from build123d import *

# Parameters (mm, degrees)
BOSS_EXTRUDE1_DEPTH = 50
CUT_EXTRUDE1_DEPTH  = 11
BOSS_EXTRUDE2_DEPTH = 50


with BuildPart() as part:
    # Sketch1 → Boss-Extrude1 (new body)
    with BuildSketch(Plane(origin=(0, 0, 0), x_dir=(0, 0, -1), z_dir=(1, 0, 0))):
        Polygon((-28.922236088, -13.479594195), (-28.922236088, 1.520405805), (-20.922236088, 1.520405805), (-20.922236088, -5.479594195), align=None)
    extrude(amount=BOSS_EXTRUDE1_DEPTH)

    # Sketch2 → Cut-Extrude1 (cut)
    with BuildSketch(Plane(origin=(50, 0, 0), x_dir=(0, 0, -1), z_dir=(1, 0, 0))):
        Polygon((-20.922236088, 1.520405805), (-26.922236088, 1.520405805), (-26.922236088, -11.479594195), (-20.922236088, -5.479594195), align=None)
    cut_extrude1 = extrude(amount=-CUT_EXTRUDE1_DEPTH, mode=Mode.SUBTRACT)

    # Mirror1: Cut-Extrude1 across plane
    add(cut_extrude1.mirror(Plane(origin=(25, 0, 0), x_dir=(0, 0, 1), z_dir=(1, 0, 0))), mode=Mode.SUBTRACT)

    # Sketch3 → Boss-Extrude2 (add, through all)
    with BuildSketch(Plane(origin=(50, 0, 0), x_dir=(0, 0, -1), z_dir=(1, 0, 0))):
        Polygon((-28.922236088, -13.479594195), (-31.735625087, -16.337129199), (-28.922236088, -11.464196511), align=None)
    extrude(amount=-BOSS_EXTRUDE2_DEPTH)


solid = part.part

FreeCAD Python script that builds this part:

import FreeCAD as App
import Part
import Sketcher
from FreeCAD import Vector
Q = App.Units.Quantity

doc = App.newDocument("Part")
body = doc.addObject("PartDesign::Body", "Body")

# Sketch on YZ plane
sketch1 = body.newObject("Sketcher::SketchObject", "Sketch")
sketch1.AttachmentSupport = (doc.getObject("YZ_Plane"), [""])
sketch1.MapMode = "FlatFace"
sketch1.addGeometry(Part.LineSegment(Vector(2, 29, 0), Vector(-13, 29, 0)), False)
sketch1.addGeometry(Part.LineSegment(Vector(-13, 29, 0), Vector(-5, 21, 0)), False)
sketch1.addGeometry(Part.LineSegment(Vector(-5, 21, 0), Vector(2, 21, 0)), False)
sketch1.addGeometry(Part.LineSegment(Vector(2, 21, 0), Vector(2, 29, 0)), False)
sketch1.addConstraint(Sketcher.Constraint("Coincident", 0, 2, 1, 1))
sketch1.addConstraint(Sketcher.Constraint("Coincident", 1, 2, 2, 1))
sketch1.addConstraint(Sketcher.Constraint("Coincident", 2, 2, 3, 1))
sketch1.addConstraint(Sketcher.Constraint("Coincident", 3, 2, 0, 1))
sketch1.addConstraint(Sketcher.Constraint("Horizontal", 0))
sketch1.addConstraint(Sketcher.Constraint("Horizontal", 2))
sketch1.addConstraint(Sketcher.Constraint("Vertical", 3))
sketch1.addConstraint(Sketcher.Constraint("DistanceX", 0, 2, 0, 1, 15.0))
sketch1.addConstraint(Sketcher.Constraint("DistanceX", 2, 1, 2, 2, 7.0))
sketch1.addConstraint(Sketcher.Constraint("DistanceY", 3, 1, 3, 2, 8.0))
sketch1.addConstraint(Sketcher.Constraint("DistanceX", 0, 2, -1, 1, 13.479594))
sketch1.addConstraint(Sketcher.Constraint("DistanceY", -1, 1, 0, 2, 28.922236))
pad1 = body.newObject("PartDesign::Pad", "Pad")
pad1.Profile = sketch1
pad1.Length = 50

# Sketch on YZ plane
sketch2 = body.newObject("Sketcher::SketchObject", "Sketch001")
sketch2.AttachmentSupport = (doc.getObject("YZ_Plane"), [""])
sketch2.MapMode = "FlatFace"
sketch2.AttachmentOffset = App.Placement(Vector(0, 0, 50), App.Rotation())
sketch2.addGeometry(Part.LineSegment(Vector(2, 21, 0), Vector(2, 27, 0)), False)
sketch2.addGeometry(Part.LineSegment(Vector(2, 27, 0), Vector(-11, 27, 0)), False)
sketch2.addGeometry(Part.LineSegment(Vector(-11, 27, 0), Vector(-5, 21, 0)), False)
sketch2.addGeometry(Part.LineSegment(Vector(-5, 21, 0), Vector(2, 21, 0)), False)
sketch2.addConstraint(Sketcher.Constraint("Coincident", 0, 2, 1, 1))
sketch2.addConstraint(Sketcher.Constraint("Coincident", 1, 2, 2, 1))
sketch2.addConstraint(Sketcher.Constraint("Coincident", 2, 2, 3, 1))
sketch2.addConstraint(Sketcher.Constraint("Coincident", 3, 2, 0, 1))
sketch2.addConstraint(Sketcher.Constraint("Vertical", 0))
sketch2.addConstraint(Sketcher.Constraint("Horizontal", 1))
sketch2.addConstraint(Sketcher.Constraint("Horizontal", 3))
sketch2.addConstraint(Sketcher.Constraint("DistanceX", 1, 2, 1, 1, 13.0))
sketch2.addConstraint(Sketcher.Constraint("DistanceX", 3, 1, 3, 2, 7.0))
sketch2.addConstraint(Sketcher.Constraint("DistanceY", 0, 1, 0, 2, 6.0))
sketch2.addConstraint(Sketcher.Constraint("DistanceX", -1, 1, 0, 2, 1.520406))
sketch2.addConstraint(Sketcher.Constraint("DistanceY", -1, 1, 0, 2, 26.922236))
pocket1 = body.newObject("PartDesign::Pocket", "Pocket")
pocket1.Profile = sketch2
pocket1.Length = 11
doc.recompute()

datumplane = body.newObject("PartDesign::Plane", "DatumPlane")
datumplane.AttachmentSupport = (doc.getObject("YZ_Plane"), [""])
datumplane.MapMode = "FlatFace"
datumplane.AttachmentOffset = App.Placement(Vector(0, 0, 25), App.Rotation())
mirrored = body.newObject("PartDesign::Mirrored", "Mirrored")
mirrored.Originals = [pocket1]
mirrored.MirrorPlane = (datumplane, [""])
body.Tip = mirrored

# Sketch on YZ plane
sketch3 = body.newObject("Sketcher::SketchObject", "Sketch002")
sketch3.AttachmentSupport = (doc.getObject("YZ_Plane"), [""])
sketch3.MapMode = "FlatFace"
sketch3.AttachmentOffset = App.Placement(Vector(0, 0, 50), App.Rotation())
sketch3.addGeometry(Part.LineSegment(Vector(-16.3, 31.7, 0), Vector(-13.5, 28.9, 0)), False)
sketch3.addGeometry(Part.LineSegment(Vector(-13.5, 28.9, 0), Vector(-11.5, 28.9, 0)), False)
sketch3.addGeometry(Part.LineSegment(Vector(-11.5, 28.9, 0), Vector(-16.3, 31.7, 0)), False)
sketch3.addConstraint(Sketcher.Constraint("Coincident", 0, 2, 1, 1))
sketch3.addConstraint(Sketcher.Constraint("Coincident", 1, 2, 2, 1))
sketch3.addConstraint(Sketcher.Constraint("Coincident", 2, 2, 0, 1))
sketch3.addConstraint(Sketcher.Constraint("Horizontal", 1))
sketch3.addConstraint(Sketcher.Constraint("Angle", 2, Q("150 deg")))
sketch3.addConstraint(Sketcher.Constraint("Distance", 0, 4.01007))
sketch3.addConstraint(Sketcher.Constraint("DistanceX", 1, 1, 1, 2, 2.015398))
sketch3.addConstraint(Sketcher.Constraint("DistanceX", 2, 2, -1, 1, 16.337129))
sketch3.addConstraint(Sketcher.Constraint("DistanceY", -1, 1, 0, 2, 28.922236))
pad2 = body.newObject("PartDesign::Pad", "Pad001")
pad2.Profile = sketch3
pad2.Length = 50
pad2.Reversed = True

doc.recompute()
